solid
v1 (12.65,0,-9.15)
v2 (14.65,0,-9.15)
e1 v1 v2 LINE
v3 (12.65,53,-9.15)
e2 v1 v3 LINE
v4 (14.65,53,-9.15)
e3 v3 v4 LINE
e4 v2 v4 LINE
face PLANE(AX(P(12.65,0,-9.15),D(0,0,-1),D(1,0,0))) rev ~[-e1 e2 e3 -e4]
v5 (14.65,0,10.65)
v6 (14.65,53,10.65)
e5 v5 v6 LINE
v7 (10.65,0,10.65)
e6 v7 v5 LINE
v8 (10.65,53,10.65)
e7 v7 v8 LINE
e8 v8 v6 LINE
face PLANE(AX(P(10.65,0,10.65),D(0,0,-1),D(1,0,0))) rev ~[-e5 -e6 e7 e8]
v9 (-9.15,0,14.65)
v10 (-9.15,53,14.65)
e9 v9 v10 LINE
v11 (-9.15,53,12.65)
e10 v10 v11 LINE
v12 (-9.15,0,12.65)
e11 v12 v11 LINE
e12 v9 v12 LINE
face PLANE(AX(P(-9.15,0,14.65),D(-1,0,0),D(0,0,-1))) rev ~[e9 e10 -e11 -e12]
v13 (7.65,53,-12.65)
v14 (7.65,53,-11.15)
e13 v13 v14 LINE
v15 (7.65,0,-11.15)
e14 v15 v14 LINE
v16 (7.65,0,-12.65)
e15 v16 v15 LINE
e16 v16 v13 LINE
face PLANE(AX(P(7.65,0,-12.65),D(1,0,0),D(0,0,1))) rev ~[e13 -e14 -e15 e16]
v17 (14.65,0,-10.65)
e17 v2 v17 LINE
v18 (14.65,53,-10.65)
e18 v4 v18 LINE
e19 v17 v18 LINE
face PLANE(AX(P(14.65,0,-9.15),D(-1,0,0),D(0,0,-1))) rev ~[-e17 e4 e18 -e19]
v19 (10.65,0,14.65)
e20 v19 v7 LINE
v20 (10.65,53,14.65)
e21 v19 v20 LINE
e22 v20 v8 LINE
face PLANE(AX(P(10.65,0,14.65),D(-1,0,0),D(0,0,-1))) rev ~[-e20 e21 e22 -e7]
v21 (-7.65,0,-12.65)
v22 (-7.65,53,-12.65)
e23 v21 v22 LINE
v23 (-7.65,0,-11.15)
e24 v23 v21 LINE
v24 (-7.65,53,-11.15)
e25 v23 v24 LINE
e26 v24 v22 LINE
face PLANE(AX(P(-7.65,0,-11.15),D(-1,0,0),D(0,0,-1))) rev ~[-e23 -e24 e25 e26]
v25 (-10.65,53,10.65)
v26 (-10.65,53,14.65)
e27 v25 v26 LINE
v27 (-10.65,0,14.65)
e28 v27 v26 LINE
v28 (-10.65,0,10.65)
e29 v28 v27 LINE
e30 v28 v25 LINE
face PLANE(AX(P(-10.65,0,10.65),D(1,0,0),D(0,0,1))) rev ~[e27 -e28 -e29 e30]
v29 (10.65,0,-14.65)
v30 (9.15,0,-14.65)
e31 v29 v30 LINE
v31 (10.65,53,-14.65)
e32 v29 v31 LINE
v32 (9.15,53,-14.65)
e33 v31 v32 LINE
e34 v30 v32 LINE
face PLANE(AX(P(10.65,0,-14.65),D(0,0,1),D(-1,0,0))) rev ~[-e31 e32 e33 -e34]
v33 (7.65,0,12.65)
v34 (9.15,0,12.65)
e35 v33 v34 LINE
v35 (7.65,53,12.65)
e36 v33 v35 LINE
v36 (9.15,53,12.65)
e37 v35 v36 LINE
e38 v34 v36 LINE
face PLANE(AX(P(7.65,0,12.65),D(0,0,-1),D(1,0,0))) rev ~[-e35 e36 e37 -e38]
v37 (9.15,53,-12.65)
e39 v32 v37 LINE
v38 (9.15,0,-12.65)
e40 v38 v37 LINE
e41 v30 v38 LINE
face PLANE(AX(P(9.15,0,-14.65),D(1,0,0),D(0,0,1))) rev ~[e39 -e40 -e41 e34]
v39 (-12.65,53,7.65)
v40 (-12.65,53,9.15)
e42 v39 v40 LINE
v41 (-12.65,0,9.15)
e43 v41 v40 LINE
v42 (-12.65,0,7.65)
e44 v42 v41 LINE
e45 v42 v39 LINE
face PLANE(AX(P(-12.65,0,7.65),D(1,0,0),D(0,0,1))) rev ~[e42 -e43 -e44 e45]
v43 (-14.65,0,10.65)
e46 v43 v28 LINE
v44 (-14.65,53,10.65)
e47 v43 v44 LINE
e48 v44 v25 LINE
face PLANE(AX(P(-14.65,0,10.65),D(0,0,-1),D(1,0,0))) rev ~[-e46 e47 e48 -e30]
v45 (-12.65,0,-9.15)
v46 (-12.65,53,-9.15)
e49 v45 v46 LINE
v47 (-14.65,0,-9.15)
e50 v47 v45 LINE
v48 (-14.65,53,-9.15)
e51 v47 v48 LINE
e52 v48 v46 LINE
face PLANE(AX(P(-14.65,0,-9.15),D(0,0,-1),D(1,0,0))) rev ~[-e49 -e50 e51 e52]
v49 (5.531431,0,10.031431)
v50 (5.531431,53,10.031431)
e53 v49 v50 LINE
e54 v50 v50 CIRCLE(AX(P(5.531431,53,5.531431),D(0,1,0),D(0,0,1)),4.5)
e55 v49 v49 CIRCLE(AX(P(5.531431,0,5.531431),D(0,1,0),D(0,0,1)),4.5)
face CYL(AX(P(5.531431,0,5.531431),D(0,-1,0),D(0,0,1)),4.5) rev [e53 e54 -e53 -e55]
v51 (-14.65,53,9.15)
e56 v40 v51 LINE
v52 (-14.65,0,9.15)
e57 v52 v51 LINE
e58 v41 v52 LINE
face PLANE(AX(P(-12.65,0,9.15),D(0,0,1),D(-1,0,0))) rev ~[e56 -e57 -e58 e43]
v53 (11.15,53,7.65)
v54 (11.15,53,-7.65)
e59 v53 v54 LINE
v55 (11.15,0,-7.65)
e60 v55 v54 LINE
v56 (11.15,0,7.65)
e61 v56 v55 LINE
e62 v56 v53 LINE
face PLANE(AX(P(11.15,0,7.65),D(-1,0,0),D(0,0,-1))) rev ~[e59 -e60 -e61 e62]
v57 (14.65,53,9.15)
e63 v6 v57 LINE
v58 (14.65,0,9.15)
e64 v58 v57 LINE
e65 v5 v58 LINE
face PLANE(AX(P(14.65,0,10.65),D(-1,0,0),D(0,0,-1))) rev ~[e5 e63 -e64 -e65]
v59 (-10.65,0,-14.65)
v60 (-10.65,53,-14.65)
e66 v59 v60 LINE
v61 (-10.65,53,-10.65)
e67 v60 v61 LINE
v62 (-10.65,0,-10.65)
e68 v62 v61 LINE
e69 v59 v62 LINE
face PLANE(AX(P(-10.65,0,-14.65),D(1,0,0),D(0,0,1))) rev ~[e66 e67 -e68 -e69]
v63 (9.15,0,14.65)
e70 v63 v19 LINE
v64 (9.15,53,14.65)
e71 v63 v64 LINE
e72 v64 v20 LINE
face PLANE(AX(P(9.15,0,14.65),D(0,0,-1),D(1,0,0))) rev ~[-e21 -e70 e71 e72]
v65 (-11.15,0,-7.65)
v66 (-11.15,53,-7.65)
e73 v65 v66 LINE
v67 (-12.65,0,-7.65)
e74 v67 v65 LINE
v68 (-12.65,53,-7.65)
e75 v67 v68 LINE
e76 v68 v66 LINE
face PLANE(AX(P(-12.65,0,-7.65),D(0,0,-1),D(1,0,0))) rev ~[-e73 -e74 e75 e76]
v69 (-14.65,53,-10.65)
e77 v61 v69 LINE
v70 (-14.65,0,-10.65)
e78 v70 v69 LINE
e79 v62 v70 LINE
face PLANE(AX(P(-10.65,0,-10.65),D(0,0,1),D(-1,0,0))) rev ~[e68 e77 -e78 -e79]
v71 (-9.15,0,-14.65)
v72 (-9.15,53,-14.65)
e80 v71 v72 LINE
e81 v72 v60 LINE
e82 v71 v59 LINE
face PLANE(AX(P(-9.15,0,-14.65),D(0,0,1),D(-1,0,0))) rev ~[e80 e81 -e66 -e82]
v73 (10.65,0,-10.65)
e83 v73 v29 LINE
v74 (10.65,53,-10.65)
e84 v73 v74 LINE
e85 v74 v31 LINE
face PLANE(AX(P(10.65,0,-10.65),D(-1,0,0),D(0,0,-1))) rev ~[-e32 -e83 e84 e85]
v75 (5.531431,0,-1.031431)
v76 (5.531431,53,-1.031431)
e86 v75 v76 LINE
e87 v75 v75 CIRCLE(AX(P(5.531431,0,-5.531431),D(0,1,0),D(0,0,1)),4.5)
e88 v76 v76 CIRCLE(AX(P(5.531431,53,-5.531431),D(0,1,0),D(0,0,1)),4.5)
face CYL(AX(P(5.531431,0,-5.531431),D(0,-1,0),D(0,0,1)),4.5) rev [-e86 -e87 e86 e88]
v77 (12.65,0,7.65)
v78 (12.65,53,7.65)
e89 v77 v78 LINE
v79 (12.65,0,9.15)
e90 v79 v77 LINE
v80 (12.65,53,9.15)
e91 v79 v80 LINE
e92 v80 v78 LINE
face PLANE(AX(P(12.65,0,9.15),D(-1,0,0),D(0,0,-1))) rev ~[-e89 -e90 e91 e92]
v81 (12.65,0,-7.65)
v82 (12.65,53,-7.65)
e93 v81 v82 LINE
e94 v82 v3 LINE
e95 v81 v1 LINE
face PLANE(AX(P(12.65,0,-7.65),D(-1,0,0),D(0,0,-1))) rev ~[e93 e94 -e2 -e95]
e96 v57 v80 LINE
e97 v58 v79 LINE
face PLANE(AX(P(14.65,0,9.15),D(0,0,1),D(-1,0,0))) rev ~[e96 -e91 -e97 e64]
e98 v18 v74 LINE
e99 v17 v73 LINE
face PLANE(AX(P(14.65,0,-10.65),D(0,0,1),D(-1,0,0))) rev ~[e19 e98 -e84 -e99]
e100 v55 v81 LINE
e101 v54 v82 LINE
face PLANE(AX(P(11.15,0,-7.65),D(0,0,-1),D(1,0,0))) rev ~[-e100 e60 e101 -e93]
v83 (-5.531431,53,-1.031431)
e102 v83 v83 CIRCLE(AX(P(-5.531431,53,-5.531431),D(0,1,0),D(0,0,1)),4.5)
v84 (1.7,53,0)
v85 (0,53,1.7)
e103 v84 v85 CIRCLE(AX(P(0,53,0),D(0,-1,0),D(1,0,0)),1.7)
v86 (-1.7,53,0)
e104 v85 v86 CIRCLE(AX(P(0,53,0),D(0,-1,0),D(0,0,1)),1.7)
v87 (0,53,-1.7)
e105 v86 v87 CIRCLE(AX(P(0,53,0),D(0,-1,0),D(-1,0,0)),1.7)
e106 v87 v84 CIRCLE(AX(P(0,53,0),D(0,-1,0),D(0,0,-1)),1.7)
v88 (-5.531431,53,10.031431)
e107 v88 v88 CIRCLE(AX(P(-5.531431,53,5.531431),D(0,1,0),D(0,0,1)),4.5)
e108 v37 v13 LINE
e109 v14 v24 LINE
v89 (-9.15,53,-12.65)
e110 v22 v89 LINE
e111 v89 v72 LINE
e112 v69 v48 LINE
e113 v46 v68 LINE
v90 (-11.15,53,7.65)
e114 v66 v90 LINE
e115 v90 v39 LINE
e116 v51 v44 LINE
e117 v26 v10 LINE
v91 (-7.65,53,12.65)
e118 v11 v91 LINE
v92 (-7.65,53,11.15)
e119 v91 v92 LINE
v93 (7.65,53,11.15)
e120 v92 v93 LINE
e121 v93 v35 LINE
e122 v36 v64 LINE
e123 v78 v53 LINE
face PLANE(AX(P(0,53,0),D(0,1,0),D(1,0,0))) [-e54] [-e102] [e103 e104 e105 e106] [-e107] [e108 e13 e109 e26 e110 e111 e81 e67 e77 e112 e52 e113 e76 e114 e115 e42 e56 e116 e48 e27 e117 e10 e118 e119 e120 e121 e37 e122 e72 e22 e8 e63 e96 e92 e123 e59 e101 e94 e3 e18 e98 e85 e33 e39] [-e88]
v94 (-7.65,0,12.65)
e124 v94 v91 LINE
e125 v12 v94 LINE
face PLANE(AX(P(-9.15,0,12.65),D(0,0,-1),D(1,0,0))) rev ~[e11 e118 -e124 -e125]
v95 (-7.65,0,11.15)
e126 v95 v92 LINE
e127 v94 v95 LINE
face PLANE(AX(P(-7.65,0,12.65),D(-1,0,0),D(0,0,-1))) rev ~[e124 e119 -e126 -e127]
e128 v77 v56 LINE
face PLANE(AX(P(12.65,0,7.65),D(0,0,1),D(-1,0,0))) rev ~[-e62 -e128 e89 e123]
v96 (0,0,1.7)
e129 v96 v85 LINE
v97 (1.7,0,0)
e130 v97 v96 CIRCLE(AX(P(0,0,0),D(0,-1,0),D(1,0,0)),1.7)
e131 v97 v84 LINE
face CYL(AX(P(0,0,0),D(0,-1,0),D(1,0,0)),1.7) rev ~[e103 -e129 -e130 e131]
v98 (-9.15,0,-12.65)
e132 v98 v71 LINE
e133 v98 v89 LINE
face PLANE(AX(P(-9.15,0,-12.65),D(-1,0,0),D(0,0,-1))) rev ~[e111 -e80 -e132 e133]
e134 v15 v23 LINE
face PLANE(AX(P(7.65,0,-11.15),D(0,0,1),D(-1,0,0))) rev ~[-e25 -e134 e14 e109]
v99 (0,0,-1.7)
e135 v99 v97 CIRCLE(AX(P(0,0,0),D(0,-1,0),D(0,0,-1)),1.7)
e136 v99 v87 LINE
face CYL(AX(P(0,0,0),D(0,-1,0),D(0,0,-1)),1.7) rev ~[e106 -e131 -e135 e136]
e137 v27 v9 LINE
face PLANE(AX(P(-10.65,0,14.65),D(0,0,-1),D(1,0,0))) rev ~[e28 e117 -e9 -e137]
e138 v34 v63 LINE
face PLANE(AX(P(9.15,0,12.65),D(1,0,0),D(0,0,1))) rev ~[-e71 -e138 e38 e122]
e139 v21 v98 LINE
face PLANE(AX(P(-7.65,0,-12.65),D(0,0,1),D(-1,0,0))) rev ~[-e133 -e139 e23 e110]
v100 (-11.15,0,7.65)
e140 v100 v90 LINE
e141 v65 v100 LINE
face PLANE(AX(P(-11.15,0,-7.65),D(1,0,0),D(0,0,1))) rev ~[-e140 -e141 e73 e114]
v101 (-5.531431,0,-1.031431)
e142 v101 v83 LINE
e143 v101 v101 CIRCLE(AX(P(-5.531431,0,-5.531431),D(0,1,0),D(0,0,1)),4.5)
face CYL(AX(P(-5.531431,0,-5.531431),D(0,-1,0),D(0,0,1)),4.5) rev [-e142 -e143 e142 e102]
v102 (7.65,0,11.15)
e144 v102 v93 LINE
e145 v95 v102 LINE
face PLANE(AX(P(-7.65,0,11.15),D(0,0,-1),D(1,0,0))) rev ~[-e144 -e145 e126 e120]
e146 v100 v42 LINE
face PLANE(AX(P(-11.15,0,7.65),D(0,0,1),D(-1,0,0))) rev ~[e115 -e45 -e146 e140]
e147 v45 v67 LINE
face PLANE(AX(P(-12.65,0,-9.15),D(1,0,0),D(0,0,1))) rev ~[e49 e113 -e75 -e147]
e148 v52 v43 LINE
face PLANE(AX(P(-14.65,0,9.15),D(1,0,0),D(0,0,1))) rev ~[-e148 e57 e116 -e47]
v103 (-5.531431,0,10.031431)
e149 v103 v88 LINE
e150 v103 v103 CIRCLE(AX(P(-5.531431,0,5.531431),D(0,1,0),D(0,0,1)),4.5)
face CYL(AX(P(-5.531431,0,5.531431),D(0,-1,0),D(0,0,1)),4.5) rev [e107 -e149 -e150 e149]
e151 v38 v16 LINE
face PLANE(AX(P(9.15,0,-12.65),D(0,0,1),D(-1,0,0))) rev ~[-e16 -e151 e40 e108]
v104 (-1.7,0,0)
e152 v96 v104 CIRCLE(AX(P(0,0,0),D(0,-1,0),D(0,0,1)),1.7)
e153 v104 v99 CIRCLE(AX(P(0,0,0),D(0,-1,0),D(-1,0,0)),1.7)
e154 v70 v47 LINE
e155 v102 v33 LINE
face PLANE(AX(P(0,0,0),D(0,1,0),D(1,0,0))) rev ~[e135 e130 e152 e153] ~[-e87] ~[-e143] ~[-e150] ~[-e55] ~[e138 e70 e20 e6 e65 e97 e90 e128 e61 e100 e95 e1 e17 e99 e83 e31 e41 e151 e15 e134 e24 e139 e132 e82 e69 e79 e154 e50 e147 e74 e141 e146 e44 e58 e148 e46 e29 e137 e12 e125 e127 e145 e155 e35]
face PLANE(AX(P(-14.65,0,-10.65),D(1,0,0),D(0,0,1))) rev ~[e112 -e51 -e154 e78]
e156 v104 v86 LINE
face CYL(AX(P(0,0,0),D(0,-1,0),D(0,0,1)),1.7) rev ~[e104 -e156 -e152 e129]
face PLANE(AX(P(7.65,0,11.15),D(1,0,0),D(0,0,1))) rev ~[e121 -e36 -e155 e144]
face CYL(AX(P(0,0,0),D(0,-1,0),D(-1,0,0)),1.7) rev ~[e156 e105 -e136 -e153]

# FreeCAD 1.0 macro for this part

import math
import FreeCAD as App
import Part
import Sketcher


def add_polygon(sketch, points):
    """Adds a closed chain of lines whose ends are joined by coincident constraints."""
    first, n = sketch.GeometryCount, len(points)
    for a, b in zip(points, points[1:] + points[:1]):
        sketch.addGeometry(Part.LineSegment(App.Vector(*a, 0), App.Vector(*b, 0)), False)
    for i in range(n):
        sketch.addConstraint(Sketcher.Constraint("Coincident", first + i, 2, first + (i + 1) % n, 1))

doc = App.newDocument("Part")
params = doc.addObject("Spreadsheet::Sheet", "Params")
for row, (alias, value) in enumerate([
    ("sketch1_diameter", "9 mm"),
    ("sketch1_radius", "1.7 mm"),
    ("sketch1_width", "4 mm"),
    ("sketch1_width2", "2 mm"),
    ("sketch1_width3", "1.5 mm"),
    ("pad1_length", "53 mm"),
], start=1):
    params.set(f"A{row}", alias)
    params.set(f"B{row}", "=" + value)
    params.setAlias(f"B{row}", alias)

body = doc.addObject("PartDesign::Body", "Body")

# Sketch on XZ plane
sketch1 = body.newObject("Sketcher::SketchObject", "Sketch")
sketch1.AttachmentSupport = (doc.getObject("XZ_Plane"), [""])
sketch1.MapMode = "FlatFace"
add_polygon(sketch1, [(-9.2, -14.7), (-10.7, -14.7), (-10.7, -10.7), (-14.7, -10.7), (-14.7, -9.2), (-12.7, -9.2), (-12.7, -7.7), (-11.2, -7.7), (-11.2, 7.7), (-12.7, 7.7), (-12.7, 9.2), (-14.7, 9.2), (-14.7, 10.7), (-10.7, 10.7), (-10.7, 14.7), (-9.2, 14.7), (-9.2, 12.7), (-7.7, 12.7), (-7.7, 11.2), (7.7, 11.2), (7.7, 12.7), (9.2, 12.7), (9.2, 14.7), (10.7, 14.7), (10.7, 10.7), (14.7, 10.7), (14.7, 9.2), (12.7, 9.2), (12.7, 7.7), (11.2, 7.7), (11.2, -7.7), (12.7, -7.7), (12.7, -9.2), (14.7, -9.2), (14.7, -10.7), (10.7, -10.7), (10.7, -14.7), (9.2, -14.7), (9.2, -12.7), (7.7, -12.7), (7.7, -11.2), (-7.7, -11.2), (-7.7, -12.7), (-9.2, -12.7)])  # lines 0-43
sketch1.addGeometry(Part.Circle(App.Vector(-5.5, 5.5, 0), App.Vector(0, 0, 1), 4.5), False)  # 44
sketch1.addGeometry(Part.ArcOfCircle(Part.Circle(App.Vector(0, 0, 0), App.Vector(0, 0, 1), 1.7), math.radians(0), math.radians(90)), False)  # 45
sketch1.addGeometry(Part.ArcOfCircle(Part.Circle(App.Vector(0, 0, 0), App.Vector(0, 0, 1), 1.7), math.radians(90), math.radians(180)), False)  # 46
sketch1.addGeometry(Part.ArcOfCircle(Part.Circle(App.Vector(0, 0, 0), App.Vector(0, 0, 1), 1.7), math.radians(180), math.radians(270)), False)  # 47
sketch1.addGeometry(Part.ArcOfCircle(Part.Circle(App.Vector(0, 0, 0), App.Vector(0, 0, 1), 1.7), math.radians(-90), math.radians(0)), False)  # 48
sketch1.addGeometry(Part.Circle(App.Vector(5.5, 5.5, 0), App.Vector(0, 0, 1), 4.5), False)  # 49
sketch1.addGeometry(Part.Circle(App.Vector(-5.5, -5.5, 0), App.Vector(0, 0, 1), 4.5), False)  # 50
sketch1.addGeometry(Part.Circle(App.Vector(5.5, -5.5, 0), App.Vector(0, 0, 1), 4.5), False)  # 51
sketch1.addConstraint([
    Sketcher.Constraint("Tangent", 45, 2, 46, 1),
    Sketcher.Constraint("Tangent", 46, 2, 47, 1),
    Sketcher.Constraint("Tangent", 47, 2, 48, 1),
    Sketcher.Constraint("Tangent", 48, 2, 45, 1),
    Sketcher.Constraint("Horizontal", 0),
    Sketcher.Constraint("Vertical", 1),
    Sketcher.Constraint("Horizontal", 2),
    Sketcher.Constraint("Vertical", 3),
    Sketcher.Constraint("Horizontal", 4),
    Sketcher.Constraint("Vertical", 5),
    Sketcher.Constraint("Horizontal", 6),
    Sketcher.Constraint("Vertical", 7),
    Sketcher.Constraint("Horizontal", 8),
    Sketcher.Constraint("Vertical", 9),
    Sketcher.Constraint("Horizontal", 10),
    Sketcher.Constraint("Vertical", 11),
    Sketcher.Constraint("Horizontal", 12),
    Sketcher.Constraint("Vertical", 13),
    Sketcher.Constraint("Horizontal", 14),
    Sketcher.Constraint("Vertical", 15),
    Sketcher.Constraint("Horizontal", 16),
    Sketcher.Constraint("Vertical", 17),
    Sketcher.Constraint("Horizontal", 18),
    Sketcher.Constraint("Vertical", 19),
    Sketcher.Constraint("Horizontal", 20),
    Sketcher.Constraint("Vertical", 21),
    Sketcher.Constraint("Horizontal", 22),
    Sketcher.Constraint("Vertical", 23),
    Sketcher.Constraint("Horizontal", 24),
    Sketcher.Constraint("Vertical", 25),
    Sketcher.Constraint("Horizontal", 26),
    Sketcher.Constraint("Vertical", 27),
    Sketcher.Constraint("Horizontal", 28),
    Sketcher.Constraint("Vertical", 29),
    Sketcher.Constraint("Horizontal", 30),
    Sketcher.Constraint("Vertical", 31),
    Sketcher.Constraint("Horizontal", 32),
    Sketcher.Constraint("Vertical", 33),
    Sketcher.Constraint("Horizontal", 34),
    Sketcher.Constraint("Vertical", 35),
    Sketcher.Constraint("Horizontal", 36),
    Sketcher.Constraint("Vertical", 37),
    Sketcher.Constraint("Horizontal", 38),
    Sketcher.Constraint("Vertical", 39),
    Sketcher.Constraint("Horizontal", 40),
    Sketcher.Constraint("Vertical", 41),
    Sketcher.Constraint("Horizontal", 42),
    Sketcher.Constraint("Vertical", 43),
    Sketcher.Constraint("Coincident", 45, 3, -1, 1),
    Sketcher.Constraint("Equal", 45, 46),
    Sketcher.Constraint("Equal", 44, 49),
    Sketcher.Constraint("Equal", 49, 50),
    Sketcher.Constraint("Equal", 50, 51),
    Sketcher.Constraint("Symmetric", 49, 3, 50, 3, -1, 1),
    Sketcher.Constraint("Symmetric", 44, 3, 51, 3, -1, 1),
    Sketcher.Constraint("Symmetric", 0, 2, 22, 2, -1, 1),
    Sketcher.Constraint("Symmetric", 2, 2, 24, 2, -1, 1),
    Sketcher.Constraint("Symmetric", 4, 2, 26, 2, -1, 1),
    Sketcher.Constraint("Symmetric", 6, 2, 28, 2, -1, 1),
    Sketcher.Constraint("Symmetric", 8, 2, 30, 2, -1, 1),
    Sketcher.Constraint("Symmetric", 10, 2, 32, 2, -1, 1),
    Sketcher.Constraint("Symmetric", 12, 2, 34, 2, -1, 1),
    Sketcher.Constraint("Symmetric", 14, 2, 36, 2, -1, 1),
    Sketcher.Constraint("Symmetric", 16, 2, 38, 2, -1, 1),
    Sketcher.Constraint("Symmetric", 18, 2, 40, 2, -1, 1),
    Sketcher.Constraint("Symmetric", 20, 2, 42, 2, -1, 1),
    Sketcher.Constraint("Symmetric", 44, 3, 49, 3, -2),
    Sketcher.Constraint("Symmetric", 16, 2, 19, 2, -2),
    Sketcher.Constraint("Symmetric", 14, 2, 21, 2, -2),
    Sketcher.Constraint("Symmetric", 12, 2, 23, 2, -2),
    Sketcher.Constraint("Symmetric", 10, 2, 25, 2, -2),
    Sketcher.Constraint("Symmetric", 8, 2, 27, 2, -2),
    Sketcher.Constraint("PointOnObject", 45, 2, -2),
    Sketcher.Constraint("PointOnObject", 46, 2, -1),
    Sketcher.Constraint("PointOnObject", 47, 2, -2),
    Sketcher.Constraint("PointOnObject", 48, 2, -1),
    Sketcher.Constraint("Equal", 0, 6),
    Sketcher.Constraint("Equal", 14, 16),
    Sketcher.Constraint("Equal", 34, 1),
    Sketcher.Constraint("Equal", 42, 3),
    Sketcher.Constraint("Equal", 3, 5),
    Sketcher.Constraint("Equal", 40, 7),
    Sketcher.Constraint("Equal", 32, 15),
    Sketcher.Constraint("Equal", 11, 17),
    Sketcher.Constraint("Diameter", 44, 9.0),
    Sketcher.Constraint("Radius", 45, 1.7),
    Sketcher.Constraint("DistanceX", 2, 2, 2, 1, 4.0),
    Sketcher.Constraint("DistanceX", 4, 1, 4, 2, 2.0),
    Sketcher.Constraint("DistanceX", 0, 2, 0, 1, 1.5),
    Sketcher.Constraint("DistanceX", 18, 1, 18, 2, 15.3),
    Sketcher.Constraint("DistanceX", 44, 3, -1, 1, 5.531431),
    Sketcher.Constraint("DistanceY", -1, 1, 44, 3, 5.531431),
])
sketch1.setExpression("Constraints[128]", "Params.sketch1_diameter")
sketch1.setExpression("Constraints[129]", "Params.sketch1_radius")
sketch1.setExpression("Constraints[130]", "Params.sketch1_width")
sketch1.setExpression("Constraints[131]", "Params.sketch1_width2")
sketch1.setExpression("Constraints[132]", "Params.sketch1_width3")
pad1 = body.newObject("PartDesign::Pad", "Pad")
pad1.Profile = sketch1
pad1.setExpression("Length", "Params.pad1_length")
pad1.Reversed = True

doc.recompute()
